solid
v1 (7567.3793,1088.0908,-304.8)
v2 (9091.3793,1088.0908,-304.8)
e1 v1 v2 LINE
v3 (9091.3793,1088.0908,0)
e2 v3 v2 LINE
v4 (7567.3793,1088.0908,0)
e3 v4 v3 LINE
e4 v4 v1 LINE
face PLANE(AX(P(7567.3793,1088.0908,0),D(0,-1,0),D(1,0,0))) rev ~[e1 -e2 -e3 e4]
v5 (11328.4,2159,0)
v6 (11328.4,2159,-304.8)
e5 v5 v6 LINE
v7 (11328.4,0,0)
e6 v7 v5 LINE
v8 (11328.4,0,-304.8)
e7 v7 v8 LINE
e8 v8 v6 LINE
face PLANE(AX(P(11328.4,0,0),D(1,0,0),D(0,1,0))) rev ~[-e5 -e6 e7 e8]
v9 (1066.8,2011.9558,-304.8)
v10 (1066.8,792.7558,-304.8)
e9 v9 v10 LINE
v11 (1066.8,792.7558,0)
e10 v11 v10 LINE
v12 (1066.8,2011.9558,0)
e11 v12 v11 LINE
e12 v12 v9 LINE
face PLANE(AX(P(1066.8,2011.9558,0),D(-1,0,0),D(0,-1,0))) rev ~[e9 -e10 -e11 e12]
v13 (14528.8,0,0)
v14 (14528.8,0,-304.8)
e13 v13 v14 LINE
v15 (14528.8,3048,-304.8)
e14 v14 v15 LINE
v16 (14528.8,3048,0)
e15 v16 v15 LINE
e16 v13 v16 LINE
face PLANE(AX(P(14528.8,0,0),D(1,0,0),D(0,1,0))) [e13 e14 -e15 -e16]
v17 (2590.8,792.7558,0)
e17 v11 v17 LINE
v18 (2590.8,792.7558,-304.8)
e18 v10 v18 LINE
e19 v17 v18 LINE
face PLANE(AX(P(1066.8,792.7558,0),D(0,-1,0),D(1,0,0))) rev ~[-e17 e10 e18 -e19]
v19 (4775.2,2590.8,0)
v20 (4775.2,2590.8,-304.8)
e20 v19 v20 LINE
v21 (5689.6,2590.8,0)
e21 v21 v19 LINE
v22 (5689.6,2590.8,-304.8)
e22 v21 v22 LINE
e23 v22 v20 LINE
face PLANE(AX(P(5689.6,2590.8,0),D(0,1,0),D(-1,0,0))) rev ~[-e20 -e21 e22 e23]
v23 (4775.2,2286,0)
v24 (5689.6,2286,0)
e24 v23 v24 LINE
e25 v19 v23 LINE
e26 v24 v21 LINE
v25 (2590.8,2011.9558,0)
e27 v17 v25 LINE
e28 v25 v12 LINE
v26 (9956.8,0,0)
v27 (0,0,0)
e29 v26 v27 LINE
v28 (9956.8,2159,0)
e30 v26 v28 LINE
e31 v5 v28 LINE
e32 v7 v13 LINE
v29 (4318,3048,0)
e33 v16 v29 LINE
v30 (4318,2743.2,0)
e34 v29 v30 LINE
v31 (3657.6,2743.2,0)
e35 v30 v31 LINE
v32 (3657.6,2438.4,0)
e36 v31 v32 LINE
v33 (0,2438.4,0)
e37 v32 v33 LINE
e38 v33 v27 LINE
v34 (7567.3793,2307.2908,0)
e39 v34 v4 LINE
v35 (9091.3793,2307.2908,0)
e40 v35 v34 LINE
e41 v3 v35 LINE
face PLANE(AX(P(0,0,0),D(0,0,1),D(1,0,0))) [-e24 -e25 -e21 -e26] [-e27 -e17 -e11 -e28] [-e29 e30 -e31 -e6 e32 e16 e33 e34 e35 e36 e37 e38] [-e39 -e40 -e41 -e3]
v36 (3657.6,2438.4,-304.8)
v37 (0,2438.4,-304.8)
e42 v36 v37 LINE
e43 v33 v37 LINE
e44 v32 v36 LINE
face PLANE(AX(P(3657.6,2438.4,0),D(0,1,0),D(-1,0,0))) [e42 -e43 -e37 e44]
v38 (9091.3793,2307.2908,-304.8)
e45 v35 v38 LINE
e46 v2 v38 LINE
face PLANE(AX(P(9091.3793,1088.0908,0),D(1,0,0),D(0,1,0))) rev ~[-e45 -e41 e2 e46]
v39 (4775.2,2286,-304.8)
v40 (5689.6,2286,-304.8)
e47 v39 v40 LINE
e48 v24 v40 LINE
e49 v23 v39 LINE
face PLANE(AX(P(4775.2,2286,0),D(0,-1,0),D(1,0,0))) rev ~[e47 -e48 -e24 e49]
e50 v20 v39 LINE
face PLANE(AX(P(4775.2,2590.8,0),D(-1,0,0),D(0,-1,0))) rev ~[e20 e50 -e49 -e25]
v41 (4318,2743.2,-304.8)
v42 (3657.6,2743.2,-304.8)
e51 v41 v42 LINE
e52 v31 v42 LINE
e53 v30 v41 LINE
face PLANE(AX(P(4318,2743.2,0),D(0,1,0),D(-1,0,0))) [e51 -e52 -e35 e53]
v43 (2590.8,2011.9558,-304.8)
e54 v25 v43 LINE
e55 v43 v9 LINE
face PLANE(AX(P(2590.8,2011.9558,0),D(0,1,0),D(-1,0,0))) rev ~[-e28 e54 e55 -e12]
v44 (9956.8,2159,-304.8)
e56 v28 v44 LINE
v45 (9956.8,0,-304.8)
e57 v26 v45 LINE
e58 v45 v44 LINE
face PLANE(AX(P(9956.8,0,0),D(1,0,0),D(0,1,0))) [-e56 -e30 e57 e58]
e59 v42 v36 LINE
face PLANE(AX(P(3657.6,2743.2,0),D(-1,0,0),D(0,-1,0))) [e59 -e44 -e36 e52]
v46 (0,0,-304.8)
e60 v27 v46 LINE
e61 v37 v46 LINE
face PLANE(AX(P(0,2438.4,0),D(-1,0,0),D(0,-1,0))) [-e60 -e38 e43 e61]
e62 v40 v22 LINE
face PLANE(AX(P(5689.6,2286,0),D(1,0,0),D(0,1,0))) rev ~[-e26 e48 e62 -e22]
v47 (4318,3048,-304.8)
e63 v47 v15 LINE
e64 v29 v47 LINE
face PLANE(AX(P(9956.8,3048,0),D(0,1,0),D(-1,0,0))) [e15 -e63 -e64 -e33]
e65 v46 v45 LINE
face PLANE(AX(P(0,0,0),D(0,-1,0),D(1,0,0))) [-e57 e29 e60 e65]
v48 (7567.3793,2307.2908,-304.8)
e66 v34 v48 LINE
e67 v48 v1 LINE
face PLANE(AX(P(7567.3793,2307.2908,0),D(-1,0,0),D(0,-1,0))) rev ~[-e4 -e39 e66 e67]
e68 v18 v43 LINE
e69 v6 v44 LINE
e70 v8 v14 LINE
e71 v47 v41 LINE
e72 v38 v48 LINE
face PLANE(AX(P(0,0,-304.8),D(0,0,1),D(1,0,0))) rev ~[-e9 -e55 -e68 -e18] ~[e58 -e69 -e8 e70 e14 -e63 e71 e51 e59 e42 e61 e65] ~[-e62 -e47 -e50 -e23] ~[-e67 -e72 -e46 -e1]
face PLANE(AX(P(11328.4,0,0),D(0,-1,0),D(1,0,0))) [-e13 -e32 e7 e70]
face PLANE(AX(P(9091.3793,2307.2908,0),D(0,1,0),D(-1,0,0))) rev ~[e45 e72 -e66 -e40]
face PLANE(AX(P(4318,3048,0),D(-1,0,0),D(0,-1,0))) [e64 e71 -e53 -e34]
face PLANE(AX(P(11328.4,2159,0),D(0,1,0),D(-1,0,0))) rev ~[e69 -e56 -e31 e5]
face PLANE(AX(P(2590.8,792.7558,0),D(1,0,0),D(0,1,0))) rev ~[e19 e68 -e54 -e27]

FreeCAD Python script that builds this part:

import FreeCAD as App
import Part
import Sketcher
Q = App.Units.Quantity

doc = App.newDocument("Part")
params = doc.addObject("Spreadsheet::Sheet", "Params")
for row, (alias, value) in enumerate([
    ("sketch1_width", "54 in"),
    ("sketch1_width2", "126 in"),
    ("sketch1_width3", "26 in"),
    ("sketch1_width4", "144 in"),
    ("sketch1_width5", "60 in"),
    ("pad1_length", "12 in"),
], start=1):
    params.set(f"A{row}", alias)
    params.set(f"B{row}", "=" + value)
    params.setAlias(f"B{row}", alias)

body = doc.addObject("PartDesign::Body", "Body")

# Sketch on XY plane
sketch1 = doc.addObject("Sketcher::SketchObject", "Sketch")
body.addObject(sketch1)
sketch1.AttachmentSupport = (doc.XY_Plane, [""])
sketch1.MapMode = "FlatFace"
sketch1.addGeometry(Part.LineSegment(App.Vector(0, 2438, 0), App.Vector(0, 0, 0)), False)
sketch1.addGeometry(Part.LineSegment(App.Vector(0, 0, 0), App.Vector(9957, 0, 0)), False)
sketch1.addGeometry(Part.LineSegment(App.Vector(9957, 0, 0), App.Vector(9957, 2159, 0)), False)
sketch1.addGeometry(Part.LineSegment(App.Vector(9957, 2159, 0), App.Vector(11328, 2159, 0)), False)
sketch1.addGeometry(Part.LineSegment(App.Vector(11328, 2159, 0), App.Vector(11328, 0, 0)), False)
sketch1.addGeometry(Part.LineSegment(App.Vector(11328, 0, 0), App.Vector(14529, 0, 0)), False)
sketch1.addGeometry(Part.LineSegment(App.Vector(14529, 0, 0), App.Vector(14529, 3048, 0)), False)
sketch1.addGeometry(Part.LineSegment(App.Vector(14529, 3048, 0), App.Vector(4318, 3048, 0)), False)
sketch1.addGeometry(Part.LineSegment(App.Vector(4318, 3048, 0), App.Vector(4318, 2743, 0)), False)
sketch1.addGeometry(Part.LineSegment(App.Vector(4318, 2743, 0), App.Vector(3658, 2743, 0)), False)
sketch1.addGeometry(Part.LineSegment(App.Vector(3658, 2743, 0), App.Vector(3658, 2438, 0)), False)
sketch1.addGeometry(Part.LineSegment(App.Vector(3658, 2438, 0), App.Vector(0, 2438, 0)), False)
sketch1.addGeometry(Part.LineSegment(App.Vector(2591, 793, 0), App.Vector(1067, 793, 0)), False)
sketch1.addGeometry(Part.LineSegment(App.Vector(1067, 793, 0), App.Vector(1067, 2012, 0)), False)
sketch1.addGeometry(Part.LineSegment(App.Vector(1067, 2012, 0), App.Vector(2591, 2012, 0)), False)
sketch1.addGeometry(Part.LineSegment(App.Vector(2591, 2012, 0), App.Vector(2591, 793, 0)), False)
sketch1.addGeometry(Part.LineSegment(App.Vector(9091, 2307, 0), App.Vector(9091, 1088, 0)), False)
sketch1.addGeometry(Part.LineSegment(App.Vector(9091, 1088, 0), App.Vector(7567, 1088, 0)), False)
sketch1.addGeometry(Part.LineSegment(App.Vector(7567, 1088, 0), App.Vector(7567, 2307, 0)), False)
sketch1.addGeometry(Part.LineSegment(App.Vector(7567, 2307, 0), App.Vector(9091, 2307, 0)), False)
sketch1.addGeometry(Part.LineSegment(App.Vector(5690, 2286, 0), App.Vector(4775, 2286, 0)), False)
sketch1.addGeometry(Part.LineSegment(App.Vector(4775, 2286, 0), App.Vector(4775, 2591, 0)), False)
sketch1.addGeometry(Part.LineSegment(App.Vector(4775, 2591, 0), App.Vector(5690, 2591, 0)), False)
sketch1.addGeometry(Part.LineSegment(App.Vector(5690, 2591, 0), App.Vector(5690, 2286, 0)), False)
sketch1.addConstraint(Sketcher.Constraint("Coincident", 0, 2, 1, 1))
sketch1.addConstraint(Sketcher.Constraint("Coincident", 1, 2, 2, 1))
sketch1.addConstraint(Sketcher.Constraint("Coincident", 2, 2, 3, 1))
sketch1.addConstraint(Sketcher.Constraint("Coincident", 3, 2, 4, 1))
sketch1.addConstraint(Sketcher.Constraint("Coincident", 4, 2, 5, 1))
sketch1.addConstraint(Sketcher.Constraint("Coincident", 5, 2, 6, 1))
sketch1.addConstraint(Sketcher.Constraint("Coincident", 6, 2, 7, 1))
sketch1.addConstraint(Sketcher.Constraint("Coincident", 7, 2, 8, 1))
sketch1.addConstraint(Sketcher.Constraint("Coincident", 8, 2, 9, 1))
sketch1.addConstraint(Sketcher.Constraint("Coincident", 9, 2, 10, 1))
sketch1.addConstraint(Sketcher.Constraint("Coincident", 10, 2, 11, 1))
sketch1.addConstraint(Sketcher.Constraint("Coincident", 11, 2, 0, 1))
sketch1.addConstraint(Sketcher.Constraint("Coincident", 12, 2, 13, 1))
sketch1.addConstraint(Sketcher.Constraint("Coincident", 13, 2, 14, 1))
sketch1.addConstraint(Sketcher.Constraint("Coincident", 14, 2, 15, 1))
sketch1.addConstraint(Sketcher.Constraint("Coincident", 15, 2, 12, 1))
sketch1.addConstraint(Sketcher.Constraint("Coincident", 16, 2, 17, 1))
sketch1.addConstraint(Sketcher.Constraint("Coincident", 17, 2, 18, 1))
sketch1.addConstraint(Sketcher.Constraint("Coincident", 18, 2, 19, 1))
sketch1.addConstraint(Sketcher.Constraint("Coincident", 19, 2, 16, 1))
sketch1.addConstraint(Sketcher.Constraint("Coincident", 20, 2, 21, 1))
sketch1.addConstraint(Sketcher.Constraint("Coincident", 21, 2, 22, 1))
sketch1.addConstraint(Sketcher.Constraint("Coincident", 22, 2, 23, 1))
sketch1.addConstraint(Sketcher.Constraint("Coincident", 23, 2, 20, 1))
sketch1.addConstraint(Sketcher.Constraint("Vertical", 0))
sketch1.addConstraint(Sketcher.Constraint("Horizontal", 1))
sketch1.addConstraint(Sketcher.Constraint("Vertical", 2))
sketch1.addConstraint(Sketcher.Constraint("Horizontal", 3))
sketch1.addConstraint(Sketcher.Constraint("Vertical", 4))
sketch1.addConstraint(Sketcher.Constraint("Horizontal", 5))
sketch1.addConstraint(Sketcher.Constraint("Vertical", 6))
sketch1.addConstraint(Sketcher.Constraint("Horizontal", 7))
sketch1.addConstraint(Sketcher.Constraint("Vertical", 8))
sketch1.addConstraint(Sketcher.Constraint("Horizontal", 9))
sketch1.addConstraint(Sketcher.Constraint("Vertical", 10))
sketch1.addConstraint(Sketcher.Constraint("Horizontal", 11))
sketch1.addConstraint(Sketcher.Constraint("Horizontal", 12))
sketch1.addConstraint(Sketcher.Constraint("Vertical", 13))
sketch1.addConstraint(Sketcher.Constraint("Horizontal", 14))
sketch1.addConstraint(Sketcher.Constraint("Vertical", 15))
sketch1.addConstraint(Sketcher.Constraint("Vertical", 16))
sketch1.addConstraint(Sketcher.Constraint("Horizontal", 17))
sketch1.addConstraint(Sketcher.Constraint("Vertical", 18))
sketch1.addConstraint(Sketcher.Constraint("Horizontal", 19))
sketch1.addConstraint(Sketcher.Constraint("Horizontal", 20))
sketch1.addConstraint(Sketcher.Constraint("Vertical", 21))
sketch1.addConstraint(Sketcher.Constraint("Horizontal", 22))
sketch1.addConstraint(Sketcher.Constraint("Vertical", 23))
sketch1.addConstraint(Sketcher.Constraint("Coincident", 0, 2, -1, 1))
sketch1.addConstraint(Sketcher.Constraint("PointOnObject", 4, 2, -1))
sketch1.addConstraint(Sketcher.Constraint("Equal", 14, 17))
sketch1.addConstraint(Sketcher.Constraint("Equal", 8, 10))
sketch1.addConstraint(Sketcher.Constraint("Equal", 15, 16))
sketch1.addConstraint(Sketcher.Constraint("Equal", 10, 21))
sketch1.addConstraint(Sketcher.Constraint("DistanceX", 3, 1, 3, 2, Q("54 in")))
sketch1.addConstraint(Sketcher.Constraint("DistanceX", 5, 1, 5, 2, Q("126 in")))
sketch1.addConstraint(Sketcher.Constraint("DistanceX", 9, 2, 9, 1, Q("26 in")))
sketch1.addConstraint(Sketcher.Constraint("DistanceX", 11, 2, 11, 1, Q("144 in")))
sketch1.addConstraint(Sketcher.Constraint("DistanceX", 12, 2, 12, 1, Q("60 in")))
sketch1.addConstraint(Sketcher.Constraint("DistanceX", 20, 2, 20, 1, Q("36 in")))
sketch1.addConstraint(Sketcher.Constraint("DistanceY", 0, 2, 0, 1, Q("96 in")))
sketch1.addConstraint(Sketcher.Constraint("DistanceY", 2, 1, 2, 2, Q("85 in")))
sketch1.addConstraint(Sketcher.Constraint("DistanceY", 6, 1, 6, 2, Q("120 in")))
sketch1.addConstraint(Sketcher.Constraint("DistanceY", 13, 1, 13, 2, Q("48 in")))
sketch1.addConstraint(Sketcher.Constraint("DistanceX", -1, 1, 5, 2, Q("572 in")))
sketch1.addConstraint(Sketcher.Constraint("DistanceX", 8, 2, 22, 2, Q("54 in")))
sketch1.addConstraint(Sketcher.Constraint("DistanceX", -1, 1, 12, 2, Q("42 in")))
sketch1.addConstraint(Sketcher.Constraint("DistanceY", -1, 1, 20, 2, Q("90 in")))
sketch1.addConstraint(Sketcher.Constraint("DistanceY", -1, 1, 12, 2, 792.7558))
sketch1.addConstraint(Sketcher.Constraint("DistanceX", -1, 1, 16, 2, 9091.3793))
sketch1.addConstraint(Sketcher.Constraint("DistanceY", -1, 1, 16, 2, 1088.0908))
sketch1.setExpression("Constraints[54]", "Params.sketch1_width")
sketch1.setExpression("Constraints[55]", "Params.sketch1_width2")
sketch1.setExpression("Constraints[56]", "Params.sketch1_width3")
sketch1.setExpression("Constraints[57]", "Params.sketch1_width4")
sketch1.setExpression("Constraints[58]", "Params.sketch1_width5")
pad1 = doc.addObject("PartDesign::Pad", "Pad")
body.addObject(pad1)
pad1.Profile = sketch1
pad1.setExpression("Length", "Params.pad1_length")
pad1.Reversed = True

doc.recompute()
